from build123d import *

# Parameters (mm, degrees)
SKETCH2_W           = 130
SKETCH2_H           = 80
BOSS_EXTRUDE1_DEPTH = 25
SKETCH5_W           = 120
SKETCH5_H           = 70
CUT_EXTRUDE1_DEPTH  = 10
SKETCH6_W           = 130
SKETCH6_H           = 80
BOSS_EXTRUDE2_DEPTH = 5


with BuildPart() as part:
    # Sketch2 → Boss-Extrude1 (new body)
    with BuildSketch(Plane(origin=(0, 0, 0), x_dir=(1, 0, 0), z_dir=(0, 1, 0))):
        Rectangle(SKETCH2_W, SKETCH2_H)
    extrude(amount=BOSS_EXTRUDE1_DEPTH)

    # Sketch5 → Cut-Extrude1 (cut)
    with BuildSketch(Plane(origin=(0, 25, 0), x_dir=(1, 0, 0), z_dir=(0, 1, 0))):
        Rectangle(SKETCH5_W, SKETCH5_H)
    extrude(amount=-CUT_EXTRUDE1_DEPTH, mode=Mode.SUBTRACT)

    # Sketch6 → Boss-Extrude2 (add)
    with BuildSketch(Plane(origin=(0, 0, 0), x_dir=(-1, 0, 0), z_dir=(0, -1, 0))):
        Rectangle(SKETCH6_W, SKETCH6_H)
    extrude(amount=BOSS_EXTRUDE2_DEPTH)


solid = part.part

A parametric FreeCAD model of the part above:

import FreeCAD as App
import Part
import Sketcher


def add_polygon(sketch, points):
    """Adds a closed chain of lines whose ends are joined by coincident constraints."""
    first, n = sketch.GeometryCount, len(points)
    for a, b in zip(points, points[1:] + points[:1]):
        sketch.addGeometry(Part.LineSegment(App.Vector(*a, 0), App.Vector(*b, 0)), False)
    for i in range(n):
        sketch.addConstraint(Sketcher.Constraint("Coincident", first + i, 2, first + (i + 1) % n, 1))

doc = App.newDocument("Part")
body = doc.addObject("PartDesign::Body", "Body")

sketch1 = body.newObject("Sketcher::SketchObject", "Sketch")
sketch1.AttachmentSupport = (doc.getObject("XZ_Plane"), [""])
sketch1.MapMode = "FlatFace"
add_polygon(sketch1, [(-65, -40), (-65, 40), (65, 40), (65, -40)])
sketch1.addConstraint(Sketcher.Constraint("Vertical", 0))
sketch1.addConstraint(Sketcher.Constraint("Horizontal", 1))
sketch1.addConstraint(Sketcher.Constraint("Vertical", 2))
sketch1.addConstraint(Sketcher.Constraint("Horizontal", 3))
sketch1.addConstraint(Sketcher.Constraint("Symmetric", 0, 2, 2, 2, -1, 1))
sketch1.addConstraint(Sketcher.Constraint("DistanceX", 1, 1, 1, 2, 130.0))
sketch1.addConstraint(Sketcher.Constraint("DistanceY", 0, 1, 0, 2, 80.0))
pad1 = body.newObject("PartDesign::Pad", "Pad")
pad1.Profile = sketch1
pad1.Length = 25
pad1.Reversed = True

sketch2 = body.newObject("Sketcher::SketchObject", "Sketch001")
sketch2.AttachmentSupport = (doc.getObject("XZ_Plane"), [""])
sketch2.MapMode = "FlatFace"
sketch2.AttachmentOffset = App.Placement(App.Vector(0, 0, -25), App.Rotation())
add_polygon(sketch2, [(-60, -35), (-60, 35), (60, 35), (60, -35)])
sketch2.addConstraint(Sketcher.Constraint("Vertical", 0))
sketch2.addConstraint(Sketcher.Constraint("Horizontal", 1))
sketch2.addConstraint(Sketcher.Constraint("Vertical", 2))
sketch2.addConstraint(Sketcher.Constraint("Horizontal", 3))
sketch2.addConstraint(Sketcher.Constraint("Symmetric", 0, 2, 2, 2, -1, 1))
sketch2.addConstraint(Sketcher.Constraint("DistanceX", 1, 1, 1, 2, 120.0))
sketch2.addConstraint(Sketcher.Constraint("DistanceY", 0, 1, 0, 2, 70.0))
pocket1 = body.newObject("PartDesign::Pocket", "Pocket")
pocket1.Profile = sketch2
pocket1.Length = 10
pocket1.Reversed = True

sketch3 = body.newObject("Sketcher::SketchObject", "Sketch002")
sketch3.AttachmentSupport = (doc.getObject("XZ_Plane"), [""])
sketch3.MapMode = "FlatFace"
add_polygon(sketch3, [(65, -40), (65, 40), (-65, 40), (-65, -40)])
sketch3.addConstraint(Sketcher.Constraint("Vertical", 0))
sketch3.addConstraint(Sketcher.Constraint("Horizontal", 1))
sketch3.addConstraint(Sketcher.Constraint("Vertical", 2))
sketch3.addConstraint(Sketcher.Constraint("Horizontal", 3))
sketch3.addConstraint(Sketcher.Constraint("Symmetric", 0, 2, 2, 2, -1, 1))
sketch3.addConstraint(Sketcher.Constraint("DistanceX", 1, 2, 1, 1, 130.0))
sketch3.addConstraint(Sketcher.Constraint("DistanceY", 0, 1, 0, 2, 80.0))
pad2 = body.newObject("PartDesign::Pad", "Pad001")
pad2.Profile = sketch3
pad2.Length = 5

doc.recompute()
